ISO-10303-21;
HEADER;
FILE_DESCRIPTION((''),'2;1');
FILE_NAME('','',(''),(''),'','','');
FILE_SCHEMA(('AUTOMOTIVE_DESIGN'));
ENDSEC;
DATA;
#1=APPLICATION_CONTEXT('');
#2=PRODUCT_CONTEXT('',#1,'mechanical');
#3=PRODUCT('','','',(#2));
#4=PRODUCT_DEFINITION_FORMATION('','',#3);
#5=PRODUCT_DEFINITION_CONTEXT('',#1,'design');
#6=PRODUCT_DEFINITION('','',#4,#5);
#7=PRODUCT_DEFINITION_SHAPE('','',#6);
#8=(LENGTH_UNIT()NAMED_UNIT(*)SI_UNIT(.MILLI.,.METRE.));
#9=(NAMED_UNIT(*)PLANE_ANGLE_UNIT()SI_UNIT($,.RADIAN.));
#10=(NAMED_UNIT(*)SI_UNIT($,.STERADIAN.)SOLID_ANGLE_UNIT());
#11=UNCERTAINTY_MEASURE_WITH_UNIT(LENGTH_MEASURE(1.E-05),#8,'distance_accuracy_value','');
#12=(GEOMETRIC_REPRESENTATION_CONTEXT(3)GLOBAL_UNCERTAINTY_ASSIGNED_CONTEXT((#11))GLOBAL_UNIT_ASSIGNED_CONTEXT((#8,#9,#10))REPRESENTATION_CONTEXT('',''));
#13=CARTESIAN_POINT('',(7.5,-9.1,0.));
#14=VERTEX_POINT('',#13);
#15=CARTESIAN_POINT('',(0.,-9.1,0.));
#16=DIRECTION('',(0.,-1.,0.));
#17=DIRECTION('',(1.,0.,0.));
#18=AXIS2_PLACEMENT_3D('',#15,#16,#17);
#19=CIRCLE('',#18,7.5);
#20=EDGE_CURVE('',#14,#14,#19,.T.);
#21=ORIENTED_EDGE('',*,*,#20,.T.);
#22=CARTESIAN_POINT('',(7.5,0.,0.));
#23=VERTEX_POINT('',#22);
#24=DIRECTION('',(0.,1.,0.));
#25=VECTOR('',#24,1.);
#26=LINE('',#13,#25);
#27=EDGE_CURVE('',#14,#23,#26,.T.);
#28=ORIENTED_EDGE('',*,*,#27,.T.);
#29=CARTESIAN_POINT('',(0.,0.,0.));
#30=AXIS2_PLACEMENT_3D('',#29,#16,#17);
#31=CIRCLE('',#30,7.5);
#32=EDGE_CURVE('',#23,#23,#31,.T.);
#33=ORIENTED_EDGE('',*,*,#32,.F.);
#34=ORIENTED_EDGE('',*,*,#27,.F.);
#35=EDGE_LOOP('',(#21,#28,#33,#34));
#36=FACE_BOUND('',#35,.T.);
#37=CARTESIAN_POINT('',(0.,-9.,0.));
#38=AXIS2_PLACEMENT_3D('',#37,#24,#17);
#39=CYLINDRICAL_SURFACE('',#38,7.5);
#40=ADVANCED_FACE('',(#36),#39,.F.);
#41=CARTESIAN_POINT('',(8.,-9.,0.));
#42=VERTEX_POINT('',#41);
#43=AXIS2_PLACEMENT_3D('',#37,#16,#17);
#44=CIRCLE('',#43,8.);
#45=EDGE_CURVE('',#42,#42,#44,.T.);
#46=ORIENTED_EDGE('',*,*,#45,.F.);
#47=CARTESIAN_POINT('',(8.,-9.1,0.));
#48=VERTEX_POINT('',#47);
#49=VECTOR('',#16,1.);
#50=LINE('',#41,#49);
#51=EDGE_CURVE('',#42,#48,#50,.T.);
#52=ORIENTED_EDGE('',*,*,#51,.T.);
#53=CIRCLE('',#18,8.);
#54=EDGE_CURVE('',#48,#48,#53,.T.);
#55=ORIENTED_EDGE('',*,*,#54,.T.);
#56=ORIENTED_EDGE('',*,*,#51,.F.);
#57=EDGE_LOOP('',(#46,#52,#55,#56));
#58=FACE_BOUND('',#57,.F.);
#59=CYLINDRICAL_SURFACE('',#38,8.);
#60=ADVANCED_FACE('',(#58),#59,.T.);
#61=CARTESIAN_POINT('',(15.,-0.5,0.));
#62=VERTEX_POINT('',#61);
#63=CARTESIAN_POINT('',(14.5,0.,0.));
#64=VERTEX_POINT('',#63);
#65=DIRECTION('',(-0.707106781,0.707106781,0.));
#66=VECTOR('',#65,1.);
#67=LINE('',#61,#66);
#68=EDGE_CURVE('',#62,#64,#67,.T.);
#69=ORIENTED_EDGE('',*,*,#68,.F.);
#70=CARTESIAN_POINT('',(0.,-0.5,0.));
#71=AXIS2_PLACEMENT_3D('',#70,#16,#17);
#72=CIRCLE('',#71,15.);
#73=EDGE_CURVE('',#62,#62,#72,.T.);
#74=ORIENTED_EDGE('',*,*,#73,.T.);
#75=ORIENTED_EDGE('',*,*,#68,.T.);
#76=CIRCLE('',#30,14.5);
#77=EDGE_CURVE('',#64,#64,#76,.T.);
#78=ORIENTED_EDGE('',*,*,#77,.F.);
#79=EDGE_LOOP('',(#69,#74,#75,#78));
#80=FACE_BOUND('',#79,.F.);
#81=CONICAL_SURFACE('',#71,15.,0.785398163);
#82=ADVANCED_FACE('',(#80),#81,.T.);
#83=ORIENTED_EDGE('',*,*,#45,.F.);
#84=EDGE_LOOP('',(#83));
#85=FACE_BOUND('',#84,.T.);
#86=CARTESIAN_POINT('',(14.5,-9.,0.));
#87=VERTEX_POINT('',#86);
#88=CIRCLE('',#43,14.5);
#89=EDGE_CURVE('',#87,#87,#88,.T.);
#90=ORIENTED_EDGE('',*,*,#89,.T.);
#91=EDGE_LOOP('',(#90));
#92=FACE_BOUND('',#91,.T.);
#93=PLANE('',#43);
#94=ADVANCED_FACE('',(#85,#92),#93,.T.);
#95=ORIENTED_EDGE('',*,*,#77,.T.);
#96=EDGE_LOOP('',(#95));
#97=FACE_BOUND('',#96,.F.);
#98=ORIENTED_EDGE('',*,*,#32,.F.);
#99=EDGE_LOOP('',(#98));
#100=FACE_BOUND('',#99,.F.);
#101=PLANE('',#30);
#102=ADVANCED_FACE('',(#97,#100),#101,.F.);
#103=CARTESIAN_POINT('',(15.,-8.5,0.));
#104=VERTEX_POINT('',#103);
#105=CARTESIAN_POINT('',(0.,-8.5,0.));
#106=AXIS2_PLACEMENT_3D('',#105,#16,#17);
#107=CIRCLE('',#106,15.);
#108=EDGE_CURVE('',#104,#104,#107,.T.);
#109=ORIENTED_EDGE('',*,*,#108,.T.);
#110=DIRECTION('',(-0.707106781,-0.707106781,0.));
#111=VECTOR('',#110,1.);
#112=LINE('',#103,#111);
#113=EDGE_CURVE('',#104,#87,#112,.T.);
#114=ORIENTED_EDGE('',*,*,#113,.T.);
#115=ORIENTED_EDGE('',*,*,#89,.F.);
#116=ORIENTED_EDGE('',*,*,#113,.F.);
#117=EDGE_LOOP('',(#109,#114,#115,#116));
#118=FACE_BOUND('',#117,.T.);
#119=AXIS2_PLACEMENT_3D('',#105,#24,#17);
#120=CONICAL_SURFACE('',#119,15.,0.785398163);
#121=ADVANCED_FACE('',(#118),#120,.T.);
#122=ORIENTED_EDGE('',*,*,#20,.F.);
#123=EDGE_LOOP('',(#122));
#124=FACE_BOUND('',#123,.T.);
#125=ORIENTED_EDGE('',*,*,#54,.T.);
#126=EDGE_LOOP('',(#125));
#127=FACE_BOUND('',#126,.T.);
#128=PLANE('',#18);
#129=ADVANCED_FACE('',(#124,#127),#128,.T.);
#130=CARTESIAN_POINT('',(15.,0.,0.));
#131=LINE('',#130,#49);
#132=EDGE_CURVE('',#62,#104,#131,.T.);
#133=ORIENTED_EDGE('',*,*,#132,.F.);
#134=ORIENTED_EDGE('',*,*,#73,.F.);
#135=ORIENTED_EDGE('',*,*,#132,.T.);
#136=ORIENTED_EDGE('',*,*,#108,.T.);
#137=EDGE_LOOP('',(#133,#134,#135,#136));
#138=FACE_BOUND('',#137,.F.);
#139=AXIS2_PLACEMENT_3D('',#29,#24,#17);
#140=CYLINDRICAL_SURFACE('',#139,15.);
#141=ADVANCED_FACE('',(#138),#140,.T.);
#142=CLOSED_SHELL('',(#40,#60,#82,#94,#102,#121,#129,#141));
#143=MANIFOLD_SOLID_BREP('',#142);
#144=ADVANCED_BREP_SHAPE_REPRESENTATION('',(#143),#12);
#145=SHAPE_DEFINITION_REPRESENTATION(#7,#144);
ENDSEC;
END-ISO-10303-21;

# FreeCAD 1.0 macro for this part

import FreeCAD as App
import Part
import Sketcher
from FreeCAD import Vector
Q = App.Units.Quantity


def edges_at(feature, points):
    """Names of the edges that pass closest to the given points."""
    edges = feature.Shape.Edges
    near = lambda p: min(range(len(edges)), key=lambda i: edges[i].distToShape(Part.Vertex(*p))[0])
    return sorted({f"Edge{near(p) + 1}" for p in points})

doc = App.newDocument("Part")
body = doc.addObject("PartDesign::Body", "Body")

sketch1 = doc.addObject("Sketcher::SketchObject", "Sketch")
body.addObject(sketch1)
sketch1.AttachmentSupport = (doc.XZ_Plane, [""])
sketch1.MapMode = "FlatFace"
sketch1.addGeometry([
    Part.Circle(Vector(0, 0, 0), Vector(0, 0, 1), 15),
    Part.Circle(Vector(0, 0, 0), Vector(0, 0, 1), 8),
], False)
sketch1.addConstraint([
    Sketcher.Constraint("Coincident", 0, 3, -1, 1),
    Sketcher.Constraint("Coincident", 1, 3, -1, 1),
    Sketcher.Constraint("Diameter", 0, Q("30 mm")),
    Sketcher.Constraint("Diameter", 1, Q("15 mm")),
])
pad1 = doc.addObject("PartDesign::Pad", "Pad")
body.addObject(pad1)
pad1.Profile = sketch1
pad1.Length = 9
doc.recompute()

chamfer = doc.addObject("PartDesign::Chamfer", "Chamfer")
body.addObject(chamfer)
chamfer.Base = (pad1, edges_at(pad1, [(-15, -9, 0), (15, -4.5, 0), (-15, 0, 0)]))
chamfer.Size = 0.5

sketch2 = doc.addObject("Sketcher::SketchObject", "Sketch001")
body.addObject(sketch2)
sketch2.AttachmentSupport = (doc.XZ_Plane, [""])
sketch2.MapMode = "FlatFace"
sketch2.AttachmentOffset = App.Placement(Vector(0, 0, 9), App.Rotation())
sketch2.addGeometry([
    Part.Circle(Vector(0, 0, 0), Vector(0, 0, 1), 8),
    Part.Circle(Vector(0, 0, 0), Vector(0, 0, 1), 8),
], False)
sketch2.addConstraint([
    Sketcher.Constraint("Coincident", 0, 3, -1, 1),
    Sketcher.Constraint("Coincident", 1, 3, -1, 1),
    Sketcher.Constraint("Diameter", 0, Q("16 mm")),
    Sketcher.Constraint("Diameter", 1, Q("15 mm")),
])
pad2 = doc.addObject("PartDesign::Pad", "Pad001")
body.addObject(pad2)
pad2.Profile = sketch2
pad2.Length = 0.1

doc.recompute()
